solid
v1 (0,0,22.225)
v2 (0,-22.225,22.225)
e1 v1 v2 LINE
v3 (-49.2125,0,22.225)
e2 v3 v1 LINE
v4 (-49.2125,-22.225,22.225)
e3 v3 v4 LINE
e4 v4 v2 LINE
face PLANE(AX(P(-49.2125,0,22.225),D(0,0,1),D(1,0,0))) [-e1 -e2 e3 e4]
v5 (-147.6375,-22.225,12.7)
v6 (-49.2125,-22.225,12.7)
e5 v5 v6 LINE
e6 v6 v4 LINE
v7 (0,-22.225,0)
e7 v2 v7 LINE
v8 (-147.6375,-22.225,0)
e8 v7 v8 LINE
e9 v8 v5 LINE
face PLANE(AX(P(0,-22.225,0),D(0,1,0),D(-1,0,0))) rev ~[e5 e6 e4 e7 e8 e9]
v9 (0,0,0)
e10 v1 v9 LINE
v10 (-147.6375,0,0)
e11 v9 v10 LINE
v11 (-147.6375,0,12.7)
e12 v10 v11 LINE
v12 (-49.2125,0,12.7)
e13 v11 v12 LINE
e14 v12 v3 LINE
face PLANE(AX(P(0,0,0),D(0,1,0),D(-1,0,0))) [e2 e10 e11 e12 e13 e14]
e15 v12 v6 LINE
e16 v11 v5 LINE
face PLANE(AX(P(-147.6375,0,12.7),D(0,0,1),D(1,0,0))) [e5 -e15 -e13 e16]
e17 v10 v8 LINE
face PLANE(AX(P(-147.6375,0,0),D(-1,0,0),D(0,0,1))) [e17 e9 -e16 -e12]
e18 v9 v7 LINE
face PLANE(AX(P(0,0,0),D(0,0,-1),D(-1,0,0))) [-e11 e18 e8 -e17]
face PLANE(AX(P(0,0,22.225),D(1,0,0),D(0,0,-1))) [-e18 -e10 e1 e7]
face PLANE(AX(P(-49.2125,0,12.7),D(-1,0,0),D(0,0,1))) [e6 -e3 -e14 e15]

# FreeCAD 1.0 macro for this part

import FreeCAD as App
import Part
import Sketcher

V = App.Vector
Q = App.Units.Quantity


def add_polygon(sketch, points):
    """Adds a closed chain of lines whose ends are joined by coincident constraints."""
    first, n = sketch.GeometryCount, len(points)
    for a, b in zip(points, points[1:] + points[:1]):
        sketch.addGeometry(Part.LineSegment(App.Vector(*a, 0), App.Vector(*b, 0)), False)
    for i in range(n):
        sketch.addConstraint(Sketcher.Constraint("Coincident", first + i, 2, first + (i + 1) % n, 1))

doc = App.newDocument("Part")
body = doc.addObject("PartDesign::Body", "Body")

# Sketch on XZ plane
sketch1 = body.newObject("Sketcher::SketchObject", "Sketch")
sketch1.AttachmentSupport = (doc.getObject("XZ_Plane"), [""])
sketch1.MapMode = "FlatFace"
add_polygon(sketch1, [(0, 22), (0, 0), (-148, 0), (-148, 13), (-49, 13), (-49, 22)])  # lines 0-5
sketch1.addConstraint([
    Sketcher.Constraint("Vertical", 0),
    Sketcher.Constraint("Horizontal", 1),
    Sketcher.Constraint("Vertical", 2),
    Sketcher.Constraint("Horizontal", 3),
    Sketcher.Constraint("Vertical", 4),
    Sketcher.Constraint("Horizontal", 5),
    Sketcher.Constraint("Coincident", 0, 2, -1, 1),
    Sketcher.Constraint("DistanceY", 2, 1, 2, 2, Q("0.5 in")),
    Sketcher.Constraint("DistanceX", 1, 2, 1, 1, Q("5.8125 in")),
    Sketcher.Constraint("DistanceX", 3, 1, 3, 2, Q("3.875 in")),
    Sketcher.Constraint("DistanceY", 0, 2, 0, 1, Q("0.875 in")),
])
pad1 = body.newObject("PartDesign::Pad", "Pad")
pad1.Profile = sketch1
pad1.Length = Q("0.875 in")

doc.recompute()
